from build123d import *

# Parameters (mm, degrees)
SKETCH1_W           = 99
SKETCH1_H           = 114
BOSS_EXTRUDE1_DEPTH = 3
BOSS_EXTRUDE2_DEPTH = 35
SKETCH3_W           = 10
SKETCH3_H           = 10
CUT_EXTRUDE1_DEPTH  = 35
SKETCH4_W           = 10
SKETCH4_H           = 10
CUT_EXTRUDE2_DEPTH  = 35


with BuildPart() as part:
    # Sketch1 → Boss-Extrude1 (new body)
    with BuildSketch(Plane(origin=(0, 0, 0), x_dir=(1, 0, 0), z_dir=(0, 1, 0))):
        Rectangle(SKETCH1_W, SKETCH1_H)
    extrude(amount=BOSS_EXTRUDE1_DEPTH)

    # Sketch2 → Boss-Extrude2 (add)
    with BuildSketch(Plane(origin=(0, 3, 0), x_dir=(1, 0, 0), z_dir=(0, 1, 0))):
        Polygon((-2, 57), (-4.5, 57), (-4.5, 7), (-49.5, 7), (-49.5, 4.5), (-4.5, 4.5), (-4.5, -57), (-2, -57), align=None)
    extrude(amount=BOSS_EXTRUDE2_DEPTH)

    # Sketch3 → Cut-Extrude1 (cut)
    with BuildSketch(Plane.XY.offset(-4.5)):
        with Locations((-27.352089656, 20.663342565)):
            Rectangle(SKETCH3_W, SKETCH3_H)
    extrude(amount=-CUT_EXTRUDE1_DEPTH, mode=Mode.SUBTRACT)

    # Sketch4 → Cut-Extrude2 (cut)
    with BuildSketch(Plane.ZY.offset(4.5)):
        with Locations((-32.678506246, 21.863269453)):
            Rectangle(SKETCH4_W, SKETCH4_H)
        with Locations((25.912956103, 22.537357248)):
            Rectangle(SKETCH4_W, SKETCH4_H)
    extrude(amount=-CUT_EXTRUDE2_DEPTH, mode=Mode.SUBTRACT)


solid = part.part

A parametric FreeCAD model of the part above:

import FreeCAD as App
import Part
import Sketcher
from FreeCAD import Vector


def add_polygon(sketch, points):
    """Adds a closed chain of lines whose ends are joined by coincident constraints."""
    first, n = sketch.GeometryCount, len(points)
    for a, b in zip(points, points[1:] + points[:1]):
        sketch.addGeometry(Part.LineSegment(App.Vector(*a, 0), App.Vector(*b, 0)), False)
    for i in range(n):
        sketch.addConstraint(Sketcher.Constraint("Coincident", first + i, 2, first + (i + 1) % n, 1))

doc = App.newDocument("Part")
body = doc.addObject("PartDesign::Body", "Body")

# Sketch on XZ plane
sketch1 = body.newObject("Sketcher::SketchObject", "Sketch")
sketch1.AttachmentSupport = (doc.getObject("XZ_Plane"), [""])
sketch1.MapMode = "FlatFace"
add_polygon(sketch1, [(-49.5, -57), (-49.5, 57), (49.5, 57), (49.5, -57)])  # lines 0-3
sketch1.addConstraint([
    Sketcher.Constraint("Vertical", 0),
    Sketcher.Constraint("Horizontal", 1),
    Sketcher.Constraint("Vertical", 2),
    Sketcher.Constraint("Horizontal", 3),
    Sketcher.Constraint("Symmetric", 0, 2, 2, 2, -1, 1),
    Sketcher.Constraint("DistanceX", 1, 1, 1, 2, 99.0),
    Sketcher.Constraint("DistanceY", 0, 1, 0, 2, 114.0),
])
pad1 = body.newObject("PartDesign::Pad", "Pad")
pad1.Profile = sketch1
pad1.Length = 3
pad1.Reversed = True

# Sketch on XZ plane
sketch2 = body.newObject("Sketcher::SketchObject", "Sketch001")
sketch2.AttachmentSupport = (doc.getObject("XZ_Plane"), [""])
sketch2.MapMode = "FlatFace"
sketch2.AttachmentOffset = App.Placement(Vector(0, 0, -3), App.Rotation())
add_polygon(sketch2, [(-2, -57), (-4.5, -57), (-4.5, -7), (-49.5, -7), (-49.5, -4.5), (-4.5, -4.5), (-4.5, 57), (-2, 57)])  # lines 0-7
sketch2.addConstraint([
    Sketcher.Constraint("Horizontal", 0),
    Sketcher.Constraint("Vertical", 1),
    Sketcher.Constraint("Horizontal", 2),
    Sketcher.Constraint("Vertical", 3),
    Sketcher.Constraint("Horizontal", 4),
    Sketcher.Constraint("Vertical", 5),
    Sketcher.Constraint("Horizontal", 6),
    Sketcher.Constraint("Vertical", 7),
    Sketcher.Constraint("Symmetric", 0, 2, 5, 2, -1),
    Sketcher.Constraint("Equal", 6, 3),
    Sketcher.Constraint("DistanceX", 2, 2, 2, 1, 45.0),
    Sketcher.Constraint("DistanceY", 1, 1, 1, 2, 50.0),
    Sketcher.Constraint("DistanceY", 7, 2, 7, 1, 114.0),
    Sketcher.Constraint("DistanceX", 0, 2, 0, 1, 2.5),
    Sketcher.Constraint("DistanceX", 6, 2, -1, 1, 2.0),
])
pad2 = body.newObject("PartDesign::Pad", "Pad001")
pad2.Profile = sketch2
pad2.Length = 35
pad2.Reversed = True

# Sketch on XY plane
sketch3 = body.newObject("Sketcher::SketchObject", "Sketch002")
sketch3.AttachmentSupport = (doc.getObject("XY_Plane"), [""])
sketch3.MapMode = "FlatFace"
sketch3.AttachmentOffset = App.Placement(Vector(0, 0, -4.5), App.Rotation())
add_polygon(sketch3, [(-32.35209, 25.663343), (-32.35209, 15.663343), (-22.35209, 15.663343), (-22.35209, 25.663343)])  # lines 0-3
sketch3.addConstraint([
    Sketcher.Constraint("Vertical", 0),
    Sketcher.Constraint("Horizontal", 1),
    Sketcher.Constraint("Vertical", 2),
    Sketcher.Constraint("Horizontal", 3),
    Sketcher.Constraint("Equal", 3, 0),
    Sketcher.Constraint("DistanceX", 1, 1, 1, 2, 10.0),
    Sketcher.Constraint("DistanceX", 0, 2, -1, 1, 32.35209),
    Sketcher.Constraint("DistanceY", -1, 1, 0, 2, 15.663343),
])
pocket1 = body.newObject("PartDesign::Pocket", "Pocket")
pocket1.Profile = sketch3
pocket1.Length = 35

# Sketch on YZ plane
sketch4 = body.newObject("Sketcher::SketchObject", "Sketch003")
sketch4.AttachmentSupport = (doc.getObject("YZ_Plane"), [""])
sketch4.MapMode = "FlatFace"
sketch4.AttachmentOffset = App.Placement(Vector(0, 0, -4.5), App.Rotation())
add_polygon(sketch4, [(26.863269, -37.678506), (16.863269, -37.678506), (16.863269, -27.678506), (26.863269, -27.678506)])  # lines 0-3
add_polygon(sketch4, [(27.537357, 20.912956), (17.537357, 20.912956), (17.537357, 30.912956), (27.537357, 30.912956)])  # lines 4-7
sketch4.addConstraint([
    Sketcher.Constraint("Horizontal", 0),
    Sketcher.Constraint("Vertical", 1),
    Sketcher.Constraint("Horizontal", 2),
    Sketcher.Constraint("Vertical", 3),
    Sketcher.Constraint("Horizontal", 4),
    Sketcher.Constraint("Vertical", 5),
    Sketcher.Constraint("Horizontal", 6),
    Sketcher.Constraint("Vertical", 7),
    Sketcher.Constraint("Equal", 2, 4),
    Sketcher.Constraint("Equal", 6, 1),
    Sketcher.Constraint("Equal", 3, 5),
    Sketcher.Constraint("DistanceX", 0, 2, 0, 1, 10.0),
    Sketcher.Constraint("DistanceX", -1, 1, 0, 2, 16.863269),
    Sketcher.Constraint("DistanceY", 0, 2, -1, 1, 37.678506),
    Sketcher.Constraint("DistanceX", -1, 1, 4, 2, 17.537357),
    Sketcher.Constraint("DistanceY", -1, 1, 4, 2, 20.912956),
])
pocket2 = body.newObject("PartDesign::Pocket", "Pocket001")
pocket2.Profile = sketch4
pocket2.Length = 35
pocket2.Reversed = True

doc.recompute()
